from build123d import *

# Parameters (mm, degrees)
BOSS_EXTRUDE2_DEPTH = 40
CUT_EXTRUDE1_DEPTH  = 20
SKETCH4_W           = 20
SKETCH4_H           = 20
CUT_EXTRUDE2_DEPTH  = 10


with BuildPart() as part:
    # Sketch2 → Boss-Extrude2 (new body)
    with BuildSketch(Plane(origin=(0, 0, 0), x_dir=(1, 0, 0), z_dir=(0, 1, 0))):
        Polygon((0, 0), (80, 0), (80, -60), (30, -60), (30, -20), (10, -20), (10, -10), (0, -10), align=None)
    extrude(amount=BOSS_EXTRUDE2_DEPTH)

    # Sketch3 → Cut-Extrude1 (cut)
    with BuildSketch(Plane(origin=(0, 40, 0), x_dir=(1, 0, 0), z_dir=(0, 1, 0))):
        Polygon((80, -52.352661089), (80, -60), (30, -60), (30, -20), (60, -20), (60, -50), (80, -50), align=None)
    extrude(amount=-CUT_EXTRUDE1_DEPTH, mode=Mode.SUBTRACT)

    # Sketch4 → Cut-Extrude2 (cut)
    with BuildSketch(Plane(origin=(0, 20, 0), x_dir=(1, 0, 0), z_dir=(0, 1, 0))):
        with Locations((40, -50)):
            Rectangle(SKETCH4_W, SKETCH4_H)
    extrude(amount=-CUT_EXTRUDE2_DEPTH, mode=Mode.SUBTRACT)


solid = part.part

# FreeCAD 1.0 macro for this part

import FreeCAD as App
import Part
import Sketcher
Q = App.Units.Quantity


def add_polygon(sketch, points):
    """Adds a closed chain of lines whose ends are joined by coincident constraints."""
    first, n = sketch.GeometryCount, len(points)
    for a, b in zip(points, points[1:] + points[:1]):
        sketch.addGeometry(Part.LineSegment(App.Vector(*a, 0), App.Vector(*b, 0)), False)
    for i in range(n):
        sketch.addConstraint(Sketcher.Constraint("Coincident", first + i, 2, first + (i + 1) % n, 1))

doc = App.newDocument("Part")
params = doc.addObject("Spreadsheet::Sheet", "Params")
for row, (alias, value) in enumerate([
    ("sketch1_width", "80 mm"),
    ("sketch1_width2", "10 mm"),
    ("sketch1_width3", "20 mm"),
    ("sketch1_height", "40 mm"),
    ("pad1_length", "40 mm"),
    ("sketch2_width", "20 mm"),
    ("sketch2_width2", "30 mm"),
    ("sketch2_height", "10 mm"),
    ("pocket1_length", "20 mm"),
    ("sketch3_width", "20 mm"),
    ("pocket2_length", "10 mm"),
], start=1):
    params.set(f"A{row}", alias)
    params.set(f"B{row}", "=" + value)
    params.setAlias(f"B{row}", alias)

body = doc.addObject("PartDesign::Body", "Body")

# Sketch on XZ plane
sketch1 = body.newObject("Sketcher::SketchObject", "Sketch")
sketch1.AttachmentSupport = (doc.getObject("XZ_Plane"), [""])
sketch1.MapMode = "FlatFace"
add_polygon(sketch1, [(80, 0), (0, 0), (0, 10), (10, 10), (10, 20), (30, 20), (30, 60), (80, 60)])  # lines 0-7
sketch1.addConstraint([
    Sketcher.Constraint("Horizontal", 0),
    Sketcher.Constraint("Vertical", 1),
    Sketcher.Constraint("Horizontal", 2),
    Sketcher.Constraint("Vertical", 3),
    Sketcher.Constraint("Horizontal", 4),
    Sketcher.Constraint("Vertical", 5),
    Sketcher.Constraint("Horizontal", 6),
    Sketcher.Constraint("Vertical", 7),
    Sketcher.Constraint("Coincident", 0, 2, -1, 1),
    Sketcher.Constraint("Equal", 2, 1),
    Sketcher.Constraint("Equal", 1, 3),
    Sketcher.Constraint("DistanceX", 0, 2, 0, 1, Q("80 mm")),
    Sketcher.Constraint("DistanceX", 2, 1, 2, 2, Q("10 mm")),
    Sketcher.Constraint("DistanceX", 4, 1, 4, 2, Q("20 mm")),
    Sketcher.Constraint("DistanceY", 5, 1, 5, 2, Q("40 mm")),
])
sketch1.setExpression("Constraints[19]", "Params.sketch1_width")
sketch1.setExpression("Constraints[20]", "Params.sketch1_width2")
sketch1.setExpression("Constraints[21]", "Params.sketch1_width3")
sketch1.setExpression("Constraints[22]", "Params.sketch1_height")
pad1 = body.newObject("PartDesign::Pad", "Pad")
pad1.Profile = sketch1
pad1.setExpression("Length", "Params.pad1_length")
pad1.Reversed = True

# Sketch on XZ plane
sketch2 = body.newObject("Sketcher::SketchObject", "Sketch001")
sketch2.AttachmentSupport = (doc.getObject("XZ_Plane"), [""])
sketch2.MapMode = "FlatFace"
sketch2.AttachmentOffset = App.Placement(App.Vector(0, 0, -40), App.Rotation())
add_polygon(sketch2, [(80, 60), (80, 50), (60, 50), (60, 20), (30, 20), (30, 60)])  # lines 0-5
sketch2.addConstraint([
    Sketcher.Constraint("Vertical", 0),
    Sketcher.Constraint("Horizontal", 1),
    Sketcher.Constraint("Vertical", 2),
    Sketcher.Constraint("Horizontal", 3),
    Sketcher.Constraint("Vertical", 4),
    Sketcher.Constraint("Horizontal", 5),
    Sketcher.Constraint("Equal", 3, 2),
    Sketcher.Constraint("DistanceX", 1, 2, 1, 1, Q("20 mm")),
    Sketcher.Constraint("DistanceX", 3, 2, 3, 1, Q("30 mm")),
    Sketcher.Constraint("DistanceY", 0, 2, 0, 1, Q("10 mm")),
    Sketcher.Constraint("DistanceX", -1, 1, 0, 2, Q("80 mm")),
    Sketcher.Constraint("DistanceY", -1, 1, 0, 2, Q("50 mm")),
])
sketch2.setExpression("Constraints[13]", "Params.sketch2_width")
sketch2.setExpression("Constraints[14]", "Params.sketch2_width2")
sketch2.setExpression("Constraints[15]", "Params.sketch2_height")
pocket1 = body.newObject("PartDesign::Pocket", "Pocket")
pocket1.Profile = sketch2
pocket1.setExpression("Length", "Params.pocket1_length")
pocket1.Reversed = True

# Sketch on XZ plane
sketch3 = body.newObject("Sketcher::SketchObject", "Sketch002")
sketch3.AttachmentSupport = (doc.getObject("XZ_Plane"), [""])
sketch3.MapMode = "FlatFace"
sketch3.AttachmentOffset = App.Placement(App.Vector(0, 0, -20), App.Rotation())
add_polygon(sketch3, [(30, 40), (30, 60), (50, 60), (50, 40)])  # lines 0-3
sketch3.addConstraint([
    Sketcher.Constraint("Vertical", 0),
    Sketcher.Constraint("Horizontal", 1),
    Sketcher.Constraint("Vertical", 2),
    Sketcher.Constraint("Horizontal", 3),
    Sketcher.Constraint("Equal", 3, 0),
    Sketcher.Constraint("DistanceX", 1, 1, 1, 2, Q("20 mm")),
    Sketcher.Constraint("DistanceX", -1, 1, 0, 2, Q("30 mm")),
    Sketcher.Constraint("DistanceY", -1, 1, 0, 2, Q("60 mm")),
])
sketch3.setExpression("Constraints[9]", "Params.sketch3_width")
pocket2 = body.newObject("PartDesign::Pocket", "Pocket001")
pocket2.Profile = sketch3
pocket2.setExpression("Length", "Params.pocket2_length")
pocket2.Reversed = True

doc.recompute()
